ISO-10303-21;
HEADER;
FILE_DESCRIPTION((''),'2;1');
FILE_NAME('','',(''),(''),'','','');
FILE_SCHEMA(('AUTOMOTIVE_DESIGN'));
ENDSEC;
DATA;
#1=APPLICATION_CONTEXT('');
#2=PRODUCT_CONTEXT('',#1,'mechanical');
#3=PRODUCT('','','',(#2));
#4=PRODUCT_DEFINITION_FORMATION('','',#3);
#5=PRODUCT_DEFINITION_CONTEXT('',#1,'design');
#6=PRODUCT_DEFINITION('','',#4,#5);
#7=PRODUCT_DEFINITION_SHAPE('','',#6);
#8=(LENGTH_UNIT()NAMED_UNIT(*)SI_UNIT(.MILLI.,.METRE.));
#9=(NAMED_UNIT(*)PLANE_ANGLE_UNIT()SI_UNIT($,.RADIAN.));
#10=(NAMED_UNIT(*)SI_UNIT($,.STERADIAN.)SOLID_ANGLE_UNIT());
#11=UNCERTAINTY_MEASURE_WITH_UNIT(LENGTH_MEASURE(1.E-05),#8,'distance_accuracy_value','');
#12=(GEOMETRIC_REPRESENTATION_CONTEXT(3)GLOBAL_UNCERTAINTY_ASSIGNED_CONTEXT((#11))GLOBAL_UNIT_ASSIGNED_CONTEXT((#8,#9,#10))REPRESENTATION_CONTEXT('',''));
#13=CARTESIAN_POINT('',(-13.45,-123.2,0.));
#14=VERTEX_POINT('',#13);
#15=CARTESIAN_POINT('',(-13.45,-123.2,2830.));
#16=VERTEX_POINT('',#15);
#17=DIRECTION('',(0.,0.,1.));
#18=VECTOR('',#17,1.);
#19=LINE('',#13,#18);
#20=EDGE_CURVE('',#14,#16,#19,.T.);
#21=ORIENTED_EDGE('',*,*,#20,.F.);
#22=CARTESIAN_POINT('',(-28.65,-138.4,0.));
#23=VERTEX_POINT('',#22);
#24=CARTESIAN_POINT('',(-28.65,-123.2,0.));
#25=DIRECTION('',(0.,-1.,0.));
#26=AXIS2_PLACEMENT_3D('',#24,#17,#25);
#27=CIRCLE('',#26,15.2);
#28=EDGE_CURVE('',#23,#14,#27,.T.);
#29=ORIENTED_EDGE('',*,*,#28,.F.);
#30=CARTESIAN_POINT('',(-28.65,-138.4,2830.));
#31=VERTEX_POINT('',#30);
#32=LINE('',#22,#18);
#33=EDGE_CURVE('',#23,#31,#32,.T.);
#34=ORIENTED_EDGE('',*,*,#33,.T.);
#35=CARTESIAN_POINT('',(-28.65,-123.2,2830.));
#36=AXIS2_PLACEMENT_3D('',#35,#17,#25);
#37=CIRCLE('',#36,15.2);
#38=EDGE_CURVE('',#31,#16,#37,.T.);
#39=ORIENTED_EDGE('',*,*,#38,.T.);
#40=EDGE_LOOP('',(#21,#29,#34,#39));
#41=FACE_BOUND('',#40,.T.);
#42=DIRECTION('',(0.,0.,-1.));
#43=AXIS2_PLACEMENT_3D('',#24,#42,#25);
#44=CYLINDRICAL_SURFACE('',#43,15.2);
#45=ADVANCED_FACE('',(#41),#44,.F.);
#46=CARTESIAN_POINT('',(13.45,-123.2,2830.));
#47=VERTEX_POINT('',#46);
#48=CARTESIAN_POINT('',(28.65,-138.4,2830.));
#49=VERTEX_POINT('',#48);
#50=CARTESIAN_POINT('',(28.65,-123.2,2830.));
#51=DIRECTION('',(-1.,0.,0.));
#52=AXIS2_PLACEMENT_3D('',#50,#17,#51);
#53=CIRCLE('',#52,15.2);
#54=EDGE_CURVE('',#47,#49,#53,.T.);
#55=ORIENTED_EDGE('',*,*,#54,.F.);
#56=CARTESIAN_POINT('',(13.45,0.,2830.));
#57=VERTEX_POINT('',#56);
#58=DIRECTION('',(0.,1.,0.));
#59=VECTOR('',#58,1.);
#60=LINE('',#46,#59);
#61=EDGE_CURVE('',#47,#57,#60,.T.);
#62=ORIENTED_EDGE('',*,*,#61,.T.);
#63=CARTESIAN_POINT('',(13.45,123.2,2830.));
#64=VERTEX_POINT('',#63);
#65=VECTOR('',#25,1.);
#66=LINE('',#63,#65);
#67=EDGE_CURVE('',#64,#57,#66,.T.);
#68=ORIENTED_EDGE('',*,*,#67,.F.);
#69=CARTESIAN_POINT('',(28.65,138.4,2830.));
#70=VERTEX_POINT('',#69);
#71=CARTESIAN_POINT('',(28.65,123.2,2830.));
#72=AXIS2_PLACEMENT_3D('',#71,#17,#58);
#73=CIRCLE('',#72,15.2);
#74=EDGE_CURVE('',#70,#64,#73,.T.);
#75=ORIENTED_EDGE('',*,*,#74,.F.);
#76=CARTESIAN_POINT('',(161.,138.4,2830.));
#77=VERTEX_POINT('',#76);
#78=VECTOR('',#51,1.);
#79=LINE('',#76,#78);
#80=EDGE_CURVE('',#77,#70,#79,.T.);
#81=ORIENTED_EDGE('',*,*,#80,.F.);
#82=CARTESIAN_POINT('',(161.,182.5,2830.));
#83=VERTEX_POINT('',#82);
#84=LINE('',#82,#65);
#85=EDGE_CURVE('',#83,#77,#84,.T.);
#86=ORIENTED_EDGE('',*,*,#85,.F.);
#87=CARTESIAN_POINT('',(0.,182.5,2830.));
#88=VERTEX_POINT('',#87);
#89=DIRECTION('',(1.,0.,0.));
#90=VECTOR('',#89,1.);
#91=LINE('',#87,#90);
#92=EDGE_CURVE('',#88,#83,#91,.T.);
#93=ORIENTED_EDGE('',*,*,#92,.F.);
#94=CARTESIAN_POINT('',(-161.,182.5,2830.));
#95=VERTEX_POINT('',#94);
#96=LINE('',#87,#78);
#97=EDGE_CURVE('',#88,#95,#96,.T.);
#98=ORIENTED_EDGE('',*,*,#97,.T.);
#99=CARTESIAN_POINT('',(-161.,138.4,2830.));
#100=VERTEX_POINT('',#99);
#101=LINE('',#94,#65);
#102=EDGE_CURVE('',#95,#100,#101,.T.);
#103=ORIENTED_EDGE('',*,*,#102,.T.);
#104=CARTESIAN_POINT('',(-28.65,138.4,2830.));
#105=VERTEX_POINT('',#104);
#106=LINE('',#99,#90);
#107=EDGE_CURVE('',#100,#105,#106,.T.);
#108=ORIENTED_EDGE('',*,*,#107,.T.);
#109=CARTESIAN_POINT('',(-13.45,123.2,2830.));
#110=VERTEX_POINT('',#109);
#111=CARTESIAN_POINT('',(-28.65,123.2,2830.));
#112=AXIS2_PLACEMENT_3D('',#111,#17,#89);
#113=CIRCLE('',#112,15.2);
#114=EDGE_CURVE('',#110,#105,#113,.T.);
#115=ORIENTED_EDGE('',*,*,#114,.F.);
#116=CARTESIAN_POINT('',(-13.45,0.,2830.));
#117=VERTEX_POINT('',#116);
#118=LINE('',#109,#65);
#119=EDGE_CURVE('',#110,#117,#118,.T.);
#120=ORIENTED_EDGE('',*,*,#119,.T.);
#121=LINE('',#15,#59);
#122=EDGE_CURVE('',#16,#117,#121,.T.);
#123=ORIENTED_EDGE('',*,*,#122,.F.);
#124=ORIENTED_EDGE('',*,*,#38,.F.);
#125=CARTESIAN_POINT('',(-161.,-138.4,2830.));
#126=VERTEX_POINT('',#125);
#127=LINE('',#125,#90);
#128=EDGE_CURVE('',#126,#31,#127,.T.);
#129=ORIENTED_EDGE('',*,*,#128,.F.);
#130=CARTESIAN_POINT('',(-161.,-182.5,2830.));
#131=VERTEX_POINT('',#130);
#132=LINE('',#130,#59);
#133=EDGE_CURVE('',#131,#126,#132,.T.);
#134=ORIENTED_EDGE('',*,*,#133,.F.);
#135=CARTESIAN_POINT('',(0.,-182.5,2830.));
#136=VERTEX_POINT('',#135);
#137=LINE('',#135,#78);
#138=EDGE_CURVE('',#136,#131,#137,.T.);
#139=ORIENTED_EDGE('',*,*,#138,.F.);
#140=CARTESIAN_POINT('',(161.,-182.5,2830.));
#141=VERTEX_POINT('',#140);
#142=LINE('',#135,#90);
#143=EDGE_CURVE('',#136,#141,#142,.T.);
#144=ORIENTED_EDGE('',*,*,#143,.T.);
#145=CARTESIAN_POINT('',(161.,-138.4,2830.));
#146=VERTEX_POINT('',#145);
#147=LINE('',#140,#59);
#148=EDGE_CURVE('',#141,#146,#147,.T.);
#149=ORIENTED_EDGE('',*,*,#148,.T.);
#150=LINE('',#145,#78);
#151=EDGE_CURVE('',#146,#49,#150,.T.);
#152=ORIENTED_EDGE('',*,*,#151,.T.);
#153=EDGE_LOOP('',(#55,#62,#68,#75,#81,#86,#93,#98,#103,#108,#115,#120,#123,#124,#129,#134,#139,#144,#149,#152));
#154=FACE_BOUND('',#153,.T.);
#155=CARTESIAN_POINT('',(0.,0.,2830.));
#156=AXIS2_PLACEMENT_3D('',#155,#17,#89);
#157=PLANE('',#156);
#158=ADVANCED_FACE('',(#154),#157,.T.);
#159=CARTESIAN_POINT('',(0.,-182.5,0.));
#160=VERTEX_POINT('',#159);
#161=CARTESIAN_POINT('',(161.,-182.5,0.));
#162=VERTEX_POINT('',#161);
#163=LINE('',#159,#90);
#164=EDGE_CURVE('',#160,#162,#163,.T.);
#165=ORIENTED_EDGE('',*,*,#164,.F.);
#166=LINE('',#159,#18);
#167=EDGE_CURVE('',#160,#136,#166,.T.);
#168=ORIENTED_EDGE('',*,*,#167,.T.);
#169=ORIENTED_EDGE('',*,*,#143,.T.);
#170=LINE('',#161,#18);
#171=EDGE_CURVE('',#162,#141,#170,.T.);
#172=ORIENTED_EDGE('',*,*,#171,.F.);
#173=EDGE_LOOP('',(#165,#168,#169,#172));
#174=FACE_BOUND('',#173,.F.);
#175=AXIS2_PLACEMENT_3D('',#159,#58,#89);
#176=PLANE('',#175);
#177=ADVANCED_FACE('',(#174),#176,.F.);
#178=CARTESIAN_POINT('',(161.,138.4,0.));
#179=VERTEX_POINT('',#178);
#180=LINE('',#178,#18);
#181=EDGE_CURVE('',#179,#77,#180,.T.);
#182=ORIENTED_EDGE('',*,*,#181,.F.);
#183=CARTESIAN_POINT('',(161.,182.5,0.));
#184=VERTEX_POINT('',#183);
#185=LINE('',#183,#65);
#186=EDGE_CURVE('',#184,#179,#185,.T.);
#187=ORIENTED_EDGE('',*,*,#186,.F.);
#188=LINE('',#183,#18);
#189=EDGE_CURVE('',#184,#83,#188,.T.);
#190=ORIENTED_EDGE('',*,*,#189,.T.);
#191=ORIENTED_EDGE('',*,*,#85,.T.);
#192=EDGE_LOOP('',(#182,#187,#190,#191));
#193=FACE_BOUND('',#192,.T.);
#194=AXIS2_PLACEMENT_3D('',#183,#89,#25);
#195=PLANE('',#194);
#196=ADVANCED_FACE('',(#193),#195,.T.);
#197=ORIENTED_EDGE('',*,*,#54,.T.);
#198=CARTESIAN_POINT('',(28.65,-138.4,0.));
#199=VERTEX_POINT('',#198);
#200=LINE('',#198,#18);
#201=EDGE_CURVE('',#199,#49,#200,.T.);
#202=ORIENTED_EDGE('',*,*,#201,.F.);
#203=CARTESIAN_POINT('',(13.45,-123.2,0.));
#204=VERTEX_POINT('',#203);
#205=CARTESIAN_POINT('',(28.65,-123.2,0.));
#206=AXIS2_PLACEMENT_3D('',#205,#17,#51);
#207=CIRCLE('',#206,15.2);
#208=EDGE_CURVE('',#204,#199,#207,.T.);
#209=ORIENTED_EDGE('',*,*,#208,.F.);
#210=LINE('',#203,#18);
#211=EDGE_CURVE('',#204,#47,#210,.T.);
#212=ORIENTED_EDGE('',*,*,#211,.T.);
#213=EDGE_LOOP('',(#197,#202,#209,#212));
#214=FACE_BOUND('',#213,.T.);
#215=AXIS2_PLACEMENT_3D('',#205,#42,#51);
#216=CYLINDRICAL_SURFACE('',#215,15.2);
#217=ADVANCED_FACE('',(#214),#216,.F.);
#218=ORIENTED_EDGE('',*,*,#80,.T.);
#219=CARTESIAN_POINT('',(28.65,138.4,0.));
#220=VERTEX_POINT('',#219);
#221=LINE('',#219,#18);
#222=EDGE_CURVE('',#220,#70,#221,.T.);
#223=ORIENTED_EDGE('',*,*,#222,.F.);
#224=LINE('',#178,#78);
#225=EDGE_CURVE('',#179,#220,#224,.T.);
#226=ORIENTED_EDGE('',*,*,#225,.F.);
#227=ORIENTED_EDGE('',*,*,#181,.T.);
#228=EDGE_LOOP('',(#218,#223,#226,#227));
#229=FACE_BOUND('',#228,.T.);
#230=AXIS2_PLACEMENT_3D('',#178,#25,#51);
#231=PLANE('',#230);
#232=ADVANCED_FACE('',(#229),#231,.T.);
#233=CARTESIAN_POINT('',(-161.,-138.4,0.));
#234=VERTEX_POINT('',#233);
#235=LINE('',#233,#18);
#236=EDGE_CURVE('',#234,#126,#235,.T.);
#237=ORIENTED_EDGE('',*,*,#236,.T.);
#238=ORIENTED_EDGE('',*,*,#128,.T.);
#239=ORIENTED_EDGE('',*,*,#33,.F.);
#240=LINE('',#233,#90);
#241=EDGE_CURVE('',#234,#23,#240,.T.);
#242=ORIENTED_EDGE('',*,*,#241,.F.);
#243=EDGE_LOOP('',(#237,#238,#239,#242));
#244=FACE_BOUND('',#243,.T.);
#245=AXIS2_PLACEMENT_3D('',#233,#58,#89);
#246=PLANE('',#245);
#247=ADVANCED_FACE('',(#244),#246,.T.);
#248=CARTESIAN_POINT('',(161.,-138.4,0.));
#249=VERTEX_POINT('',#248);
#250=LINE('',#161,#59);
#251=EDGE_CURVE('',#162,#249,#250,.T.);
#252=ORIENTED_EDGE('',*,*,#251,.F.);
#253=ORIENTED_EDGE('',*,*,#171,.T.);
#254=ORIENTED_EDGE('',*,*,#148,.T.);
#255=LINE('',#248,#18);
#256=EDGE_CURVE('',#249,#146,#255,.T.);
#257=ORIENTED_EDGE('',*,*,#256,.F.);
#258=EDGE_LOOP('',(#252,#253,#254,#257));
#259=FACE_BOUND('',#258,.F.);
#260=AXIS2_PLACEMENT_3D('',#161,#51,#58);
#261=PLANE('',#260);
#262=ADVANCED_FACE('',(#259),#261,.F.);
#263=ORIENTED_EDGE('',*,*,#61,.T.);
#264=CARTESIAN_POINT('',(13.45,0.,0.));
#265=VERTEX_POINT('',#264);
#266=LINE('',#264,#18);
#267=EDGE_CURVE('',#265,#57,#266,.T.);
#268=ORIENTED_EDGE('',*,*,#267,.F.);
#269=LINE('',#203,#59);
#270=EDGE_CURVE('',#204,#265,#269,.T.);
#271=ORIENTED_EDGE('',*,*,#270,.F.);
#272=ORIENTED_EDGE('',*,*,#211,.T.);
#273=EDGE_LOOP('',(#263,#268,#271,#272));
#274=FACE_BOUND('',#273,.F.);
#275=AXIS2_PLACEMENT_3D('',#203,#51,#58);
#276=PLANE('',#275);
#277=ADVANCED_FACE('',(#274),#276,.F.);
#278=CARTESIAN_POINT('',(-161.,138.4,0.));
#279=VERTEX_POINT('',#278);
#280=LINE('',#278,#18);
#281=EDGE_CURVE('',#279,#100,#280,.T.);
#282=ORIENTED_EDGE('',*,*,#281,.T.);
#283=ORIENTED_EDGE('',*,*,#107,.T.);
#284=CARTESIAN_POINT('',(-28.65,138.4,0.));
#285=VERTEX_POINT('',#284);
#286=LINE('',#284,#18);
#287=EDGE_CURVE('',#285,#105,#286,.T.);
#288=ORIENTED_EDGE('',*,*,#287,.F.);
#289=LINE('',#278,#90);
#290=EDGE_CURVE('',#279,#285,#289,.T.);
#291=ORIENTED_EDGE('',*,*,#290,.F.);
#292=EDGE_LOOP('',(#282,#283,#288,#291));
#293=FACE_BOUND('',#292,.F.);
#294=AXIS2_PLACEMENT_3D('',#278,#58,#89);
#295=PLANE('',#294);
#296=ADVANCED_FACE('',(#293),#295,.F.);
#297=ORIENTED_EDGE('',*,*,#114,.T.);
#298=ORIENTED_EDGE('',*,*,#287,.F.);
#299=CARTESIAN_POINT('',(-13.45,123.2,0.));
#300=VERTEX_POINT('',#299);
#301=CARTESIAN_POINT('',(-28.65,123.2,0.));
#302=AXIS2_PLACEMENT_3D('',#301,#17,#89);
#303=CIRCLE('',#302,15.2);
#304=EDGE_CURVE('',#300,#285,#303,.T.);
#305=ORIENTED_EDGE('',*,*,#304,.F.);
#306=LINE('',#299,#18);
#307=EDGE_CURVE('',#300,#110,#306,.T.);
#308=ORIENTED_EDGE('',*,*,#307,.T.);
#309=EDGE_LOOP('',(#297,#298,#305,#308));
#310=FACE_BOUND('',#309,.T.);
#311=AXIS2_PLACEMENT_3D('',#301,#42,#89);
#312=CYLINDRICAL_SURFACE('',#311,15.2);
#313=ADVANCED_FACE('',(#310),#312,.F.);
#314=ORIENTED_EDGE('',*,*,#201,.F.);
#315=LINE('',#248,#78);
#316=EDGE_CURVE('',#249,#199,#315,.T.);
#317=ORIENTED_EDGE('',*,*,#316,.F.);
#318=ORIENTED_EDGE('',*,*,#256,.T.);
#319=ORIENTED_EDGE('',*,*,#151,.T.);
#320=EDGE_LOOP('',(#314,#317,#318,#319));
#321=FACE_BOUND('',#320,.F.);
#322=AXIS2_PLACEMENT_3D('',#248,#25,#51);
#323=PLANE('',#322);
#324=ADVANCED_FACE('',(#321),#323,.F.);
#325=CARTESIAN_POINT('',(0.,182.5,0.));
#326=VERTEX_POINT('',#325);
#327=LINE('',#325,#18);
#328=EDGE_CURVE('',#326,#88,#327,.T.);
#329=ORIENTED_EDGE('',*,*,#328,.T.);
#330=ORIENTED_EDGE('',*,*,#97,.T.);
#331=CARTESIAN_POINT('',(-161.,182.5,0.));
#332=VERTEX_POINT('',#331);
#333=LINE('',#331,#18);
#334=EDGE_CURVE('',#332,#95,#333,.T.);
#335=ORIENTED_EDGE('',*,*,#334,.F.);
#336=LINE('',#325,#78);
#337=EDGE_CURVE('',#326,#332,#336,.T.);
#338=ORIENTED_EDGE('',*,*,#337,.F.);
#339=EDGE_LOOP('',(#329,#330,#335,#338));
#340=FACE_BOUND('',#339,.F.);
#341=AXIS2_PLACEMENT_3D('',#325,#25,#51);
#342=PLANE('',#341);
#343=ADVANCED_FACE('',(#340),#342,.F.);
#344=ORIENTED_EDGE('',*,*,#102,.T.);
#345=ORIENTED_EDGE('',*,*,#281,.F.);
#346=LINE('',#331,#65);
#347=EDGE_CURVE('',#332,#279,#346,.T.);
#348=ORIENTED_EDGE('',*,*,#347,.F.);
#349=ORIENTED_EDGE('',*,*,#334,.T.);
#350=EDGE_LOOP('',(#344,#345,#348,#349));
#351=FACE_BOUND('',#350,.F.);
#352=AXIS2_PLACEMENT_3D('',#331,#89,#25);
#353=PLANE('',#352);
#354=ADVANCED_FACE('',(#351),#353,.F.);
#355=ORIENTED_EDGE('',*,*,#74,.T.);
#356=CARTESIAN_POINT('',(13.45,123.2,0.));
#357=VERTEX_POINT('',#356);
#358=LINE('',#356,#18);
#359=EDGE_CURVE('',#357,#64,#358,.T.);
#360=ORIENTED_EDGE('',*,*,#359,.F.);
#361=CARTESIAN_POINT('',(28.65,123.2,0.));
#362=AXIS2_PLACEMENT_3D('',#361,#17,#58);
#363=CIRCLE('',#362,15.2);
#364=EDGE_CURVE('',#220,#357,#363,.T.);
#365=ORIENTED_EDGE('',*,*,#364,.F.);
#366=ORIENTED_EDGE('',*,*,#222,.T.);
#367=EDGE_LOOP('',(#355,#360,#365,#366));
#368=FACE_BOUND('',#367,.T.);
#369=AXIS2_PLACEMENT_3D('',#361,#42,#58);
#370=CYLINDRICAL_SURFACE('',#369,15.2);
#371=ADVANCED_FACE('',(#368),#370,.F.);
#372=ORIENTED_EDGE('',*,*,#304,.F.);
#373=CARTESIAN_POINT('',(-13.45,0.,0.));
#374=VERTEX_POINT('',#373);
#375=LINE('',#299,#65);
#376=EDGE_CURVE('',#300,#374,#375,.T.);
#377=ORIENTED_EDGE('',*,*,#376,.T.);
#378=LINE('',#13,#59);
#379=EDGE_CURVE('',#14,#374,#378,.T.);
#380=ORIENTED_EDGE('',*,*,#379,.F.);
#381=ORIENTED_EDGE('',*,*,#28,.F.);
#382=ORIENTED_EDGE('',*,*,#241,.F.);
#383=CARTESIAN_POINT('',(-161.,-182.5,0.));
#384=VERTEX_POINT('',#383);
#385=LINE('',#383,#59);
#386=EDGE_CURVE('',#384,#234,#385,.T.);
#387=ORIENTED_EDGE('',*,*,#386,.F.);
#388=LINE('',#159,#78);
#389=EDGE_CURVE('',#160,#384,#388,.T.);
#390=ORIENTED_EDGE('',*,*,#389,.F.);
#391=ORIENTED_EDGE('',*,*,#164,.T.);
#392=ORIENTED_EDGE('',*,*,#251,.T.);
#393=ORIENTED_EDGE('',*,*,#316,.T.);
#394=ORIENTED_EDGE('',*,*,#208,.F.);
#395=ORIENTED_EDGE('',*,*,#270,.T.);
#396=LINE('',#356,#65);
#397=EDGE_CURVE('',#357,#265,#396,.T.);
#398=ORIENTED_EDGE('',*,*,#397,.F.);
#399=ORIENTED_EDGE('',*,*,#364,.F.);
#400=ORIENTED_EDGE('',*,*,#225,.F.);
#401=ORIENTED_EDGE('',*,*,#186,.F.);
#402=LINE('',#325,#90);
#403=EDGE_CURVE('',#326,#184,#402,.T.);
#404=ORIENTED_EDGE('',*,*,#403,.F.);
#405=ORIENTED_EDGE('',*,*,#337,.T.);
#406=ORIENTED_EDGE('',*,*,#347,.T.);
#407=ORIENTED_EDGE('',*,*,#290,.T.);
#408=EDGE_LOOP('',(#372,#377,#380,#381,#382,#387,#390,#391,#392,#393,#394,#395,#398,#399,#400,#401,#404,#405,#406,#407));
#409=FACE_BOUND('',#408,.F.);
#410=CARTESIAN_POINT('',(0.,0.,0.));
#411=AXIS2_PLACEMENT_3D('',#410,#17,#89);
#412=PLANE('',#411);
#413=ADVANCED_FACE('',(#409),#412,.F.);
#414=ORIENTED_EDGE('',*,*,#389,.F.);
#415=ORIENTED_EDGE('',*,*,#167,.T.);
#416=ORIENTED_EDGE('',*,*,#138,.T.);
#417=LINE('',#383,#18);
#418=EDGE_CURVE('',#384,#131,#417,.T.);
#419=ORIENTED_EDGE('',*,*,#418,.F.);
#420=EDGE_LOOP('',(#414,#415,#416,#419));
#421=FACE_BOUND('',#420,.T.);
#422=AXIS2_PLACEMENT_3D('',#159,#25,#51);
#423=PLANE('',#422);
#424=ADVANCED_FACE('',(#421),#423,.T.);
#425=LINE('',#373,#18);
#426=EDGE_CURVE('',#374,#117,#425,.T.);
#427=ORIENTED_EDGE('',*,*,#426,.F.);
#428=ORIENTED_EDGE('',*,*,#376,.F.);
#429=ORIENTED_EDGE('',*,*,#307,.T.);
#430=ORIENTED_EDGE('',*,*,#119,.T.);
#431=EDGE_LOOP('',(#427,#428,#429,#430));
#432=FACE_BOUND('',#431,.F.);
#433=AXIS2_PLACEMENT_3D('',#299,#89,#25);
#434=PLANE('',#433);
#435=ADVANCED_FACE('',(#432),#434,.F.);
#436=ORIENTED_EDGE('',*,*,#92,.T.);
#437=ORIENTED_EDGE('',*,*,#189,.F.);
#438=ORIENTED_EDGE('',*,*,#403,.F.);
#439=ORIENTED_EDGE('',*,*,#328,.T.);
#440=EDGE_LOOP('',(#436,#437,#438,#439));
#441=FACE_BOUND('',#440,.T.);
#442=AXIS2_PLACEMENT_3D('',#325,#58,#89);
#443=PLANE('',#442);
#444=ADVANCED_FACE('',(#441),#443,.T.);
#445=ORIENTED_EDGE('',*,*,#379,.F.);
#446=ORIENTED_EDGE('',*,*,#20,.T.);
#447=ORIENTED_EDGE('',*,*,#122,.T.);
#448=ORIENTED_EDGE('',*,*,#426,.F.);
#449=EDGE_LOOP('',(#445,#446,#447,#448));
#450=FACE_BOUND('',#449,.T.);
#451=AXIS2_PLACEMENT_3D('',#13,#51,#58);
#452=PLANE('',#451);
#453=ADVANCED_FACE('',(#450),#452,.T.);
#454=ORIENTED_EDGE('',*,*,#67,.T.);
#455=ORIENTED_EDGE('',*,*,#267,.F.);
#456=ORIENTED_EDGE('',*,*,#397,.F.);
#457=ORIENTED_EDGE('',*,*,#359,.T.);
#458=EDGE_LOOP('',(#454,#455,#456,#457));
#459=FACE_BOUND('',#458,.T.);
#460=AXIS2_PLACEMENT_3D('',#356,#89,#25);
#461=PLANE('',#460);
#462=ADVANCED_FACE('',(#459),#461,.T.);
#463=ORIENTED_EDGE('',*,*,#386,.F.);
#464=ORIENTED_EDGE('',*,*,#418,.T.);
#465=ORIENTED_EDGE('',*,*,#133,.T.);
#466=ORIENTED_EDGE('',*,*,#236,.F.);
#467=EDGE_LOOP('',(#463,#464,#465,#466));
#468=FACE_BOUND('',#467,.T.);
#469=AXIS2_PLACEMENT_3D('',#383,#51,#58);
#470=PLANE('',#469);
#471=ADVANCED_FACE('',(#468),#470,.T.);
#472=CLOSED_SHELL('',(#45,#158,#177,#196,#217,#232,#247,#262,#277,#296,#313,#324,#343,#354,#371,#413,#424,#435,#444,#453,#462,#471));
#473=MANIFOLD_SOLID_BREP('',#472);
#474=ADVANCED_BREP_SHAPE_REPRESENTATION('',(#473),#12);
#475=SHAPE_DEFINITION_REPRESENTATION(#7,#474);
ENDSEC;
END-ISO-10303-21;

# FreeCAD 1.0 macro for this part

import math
import FreeCAD as App
import Part
import Sketcher

V = App.Vector

doc = App.newDocument("Part")
body = doc.addObject("PartDesign::Body", "Body")

# Sketch on XY plane
sketch1 = doc.addObject("Sketcher::SketchObject", "Sketch")
body.addObject(sketch1)
sketch1.AttachmentSupport = (doc.XY_Plane, [""])
sketch1.MapMode = "FlatFace"
sketch1.addGeometry([
    Part.LineSegment(V(-161, -138.4, 0), V(-161, -182.5, 0)),  # 0
    Part.LineSegment(V(-161, -182.5, 0), V(161, -182.5, 0)),  # 1
    Part.LineSegment(V(161, -182.5, 0), V(161, -138.4, 0)),  # 2
    Part.LineSegment(V(161, -138.4, 0), V(28.65, -138.4, 0)),  # 3
    Part.ArcOfCircle(Part.Circle(V(28.65, -123.2, 0), V(0, 0, 1), 15.2), math.radians(180), math.radians(270)),  # 4
    Part.LineSegment(V(13.45, -123.2, 0), V(13.45, 123.2, 0)),  # 5
    Part.ArcOfCircle(Part.Circle(V(28.65, 123.2, 0), V(0, 0, 1), 15.2), math.radians(90), math.radians(180)),  # 6
    Part.LineSegment(V(28.65, 138.4, 0), V(161, 138.4, 0)),  # 7
    Part.LineSegment(V(161, 138.4, 0), V(161, 182.5, 0)),  # 8
    Part.LineSegment(V(161, 182.5, 0), V(-161, 182.5, 0)),  # 9
    Part.LineSegment(V(-161, 182.5, 0), V(-161, 138.4, 0)),  # 10
    Part.LineSegment(V(-161, 138.4, 0), V(-28.65, 138.4, 0)),  # 11
    Part.ArcOfCircle(Part.Circle(V(-28.65, 123.2, 0), V(0, 0, 1), 15.2), math.radians(0), math.radians(90)),  # 12
    Part.LineSegment(V(-13.45, 123.2, 0), V(-13.45, -123.2, 0)),  # 13
    Part.ArcOfCircle(Part.Circle(V(-28.65, -123.2, 0), V(0, 0, 1), 15.2), math.radians(-90), math.radians(0)),  # 14
    Part.LineSegment(V(-28.65, -138.4, 0), V(-161, -138.4, 0)),  # 15
], False)
sketch1.addConstraint([
    Sketcher.Constraint("Coincident", 0, 2, 1, 1),
    Sketcher.Constraint("Coincident", 1, 2, 2, 1),
    Sketcher.Constraint("Coincident", 2, 2, 3, 1),
    Sketcher.Constraint("Tangent", 3, 2, 4, 2),
    Sketcher.Constraint("Tangent", 4, 1, 5, 1),
    Sketcher.Constraint("Tangent", 5, 2, 6, 2),
    Sketcher.Constraint("Tangent", 6, 1, 7, 1),
    Sketcher.Constraint("Coincident", 7, 2, 8, 1),
    Sketcher.Constraint("Coincident", 8, 2, 9, 1),
    Sketcher.Constraint("Coincident", 9, 2, 10, 1),
    Sketcher.Constraint("Coincident", 10, 2, 11, 1),
    Sketcher.Constraint("Tangent", 11, 2, 12, 2),
    Sketcher.Constraint("Tangent", 12, 1, 13, 1),
    Sketcher.Constraint("Tangent", 13, 2, 14, 2),
    Sketcher.Constraint("Tangent", 14, 1, 15, 1),
    Sketcher.Constraint("Coincident", 15, 2, 0, 1),
    Sketcher.Constraint("Vertical", 0),
    Sketcher.Constraint("Horizontal", 1),
    Sketcher.Constraint("Vertical", 2),
    Sketcher.Constraint("Horizontal", 3),
    Sketcher.Constraint("Vertical", 5),
    Sketcher.Constraint("Horizontal", 7),
    Sketcher.Constraint("Vertical", 8),
    Sketcher.Constraint("Horizontal", 9),
    Sketcher.Constraint("Vertical", 10),
    Sketcher.Constraint("Horizontal", 11),
    Sketcher.Constraint("Vertical", 13),
    Sketcher.Constraint("Horizontal", 15),
    Sketcher.Constraint("Equal", 4, 6),
    Sketcher.Constraint("Equal", 6, 12),
    Sketcher.Constraint("Equal", 12, 14),
    Sketcher.Constraint("Symmetric", 4, 3, 12, 3, -1, 1),
    Sketcher.Constraint("Symmetric", 0, 2, 8, 2, -1, 1),
    Sketcher.Constraint("Symmetric", 7, 2, 10, 2, -2),
    Sketcher.Constraint("Symmetric", 2, 2, 15, 2, -2),
    Sketcher.Constraint("Radius", 4, 15.2),
    Sketcher.Constraint("DistanceY", 0, 2, 0, 1, 44.1),
    Sketcher.Constraint("DistanceX", 0, 2, -1, 1, 161.0),
    Sketcher.Constraint("DistanceY", 0, 2, -1, 1, 182.5),
    Sketcher.Constraint("DistanceX", -1, 1, 4, 1, 13.45),
])
pad1 = doc.addObject("PartDesign::Pad", "Pad")
body.addObject(pad1)
pad1.Profile = sketch1
pad1.Length = 2830

doc.recompute()
